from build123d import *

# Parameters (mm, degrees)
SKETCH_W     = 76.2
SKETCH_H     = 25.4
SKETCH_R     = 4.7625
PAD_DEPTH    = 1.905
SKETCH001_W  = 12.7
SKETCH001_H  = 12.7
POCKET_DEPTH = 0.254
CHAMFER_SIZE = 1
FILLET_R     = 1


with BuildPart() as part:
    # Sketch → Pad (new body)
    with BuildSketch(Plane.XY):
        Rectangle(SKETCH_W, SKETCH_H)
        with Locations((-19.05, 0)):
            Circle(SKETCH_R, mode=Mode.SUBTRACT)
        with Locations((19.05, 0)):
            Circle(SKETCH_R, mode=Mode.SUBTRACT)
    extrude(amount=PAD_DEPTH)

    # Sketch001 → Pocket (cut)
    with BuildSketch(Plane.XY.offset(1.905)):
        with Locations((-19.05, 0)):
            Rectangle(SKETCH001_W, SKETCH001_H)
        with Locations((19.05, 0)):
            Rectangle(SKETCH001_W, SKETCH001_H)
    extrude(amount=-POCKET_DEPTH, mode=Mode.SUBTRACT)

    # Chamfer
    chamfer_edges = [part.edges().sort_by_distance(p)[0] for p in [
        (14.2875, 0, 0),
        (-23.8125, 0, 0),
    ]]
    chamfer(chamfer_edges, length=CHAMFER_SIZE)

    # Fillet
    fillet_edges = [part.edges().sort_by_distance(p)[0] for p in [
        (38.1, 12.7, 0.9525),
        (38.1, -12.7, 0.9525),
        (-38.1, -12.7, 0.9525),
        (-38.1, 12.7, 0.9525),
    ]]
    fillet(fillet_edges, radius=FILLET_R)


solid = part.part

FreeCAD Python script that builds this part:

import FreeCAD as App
import Part
import Sketcher
from FreeCAD import Vector
Q = App.Units.Quantity


def edges_at(feature, points):
    """Names of the edges that pass closest to the given points."""
    edges = feature.Shape.Edges
    near = lambda p: min(range(len(edges)), key=lambda i: edges[i].distToShape(Part.Vertex(*p))[0])
    return sorted({f"Edge{near(p) + 1}" for p in points})


def add_polygon(sketch, points):
    """Adds a closed chain of lines whose ends are joined by coincident constraints."""
    first, n = sketch.GeometryCount, len(points)
    for a, b in zip(points, points[1:] + points[:1]):
        sketch.addGeometry(Part.LineSegment(App.Vector(*a, 0), App.Vector(*b, 0)), False)
    for i in range(n):
        sketch.addConstraint(Sketcher.Constraint("Coincident", first + i, 2, first + (i + 1) % n, 1))

doc = App.newDocument("Part")
params = doc.addObject("Spreadsheet::Sheet", "Params")
for row, (alias, value) in enumerate([
    ("sketch1_width", "3 in"),
    ("sketch1_height", "1 in"),
    ("sketch1_diameter", "0.375 in"),
    ("pad1_length", "0.075 in"),
    ("sketch2_width", "0.5 in"),
    ("pocket1_length", "0.01 in"),
    ("chamfer_size", "1 mm"),
    ("fillet_radius", "1 mm"),
], start=1):
    params.set(f"A{row}", alias)
    params.set(f"B{row}", "=" + value)
    params.setAlias(f"B{row}", alias)

body = doc.addObject("PartDesign::Body", "Body")

# Sketch on XY plane
sketch1 = body.newObject("Sketcher::SketchObject", "Sketch")
sketch1.AttachmentSupport = (doc.getObject("XY_Plane"), [""])
sketch1.MapMode = "FlatFace"
add_polygon(sketch1, [(-38.1, 12.7), (-38.1, -12.7), (38.1, -12.7), (38.1, 12.7)])  # lines 0-3
sketch1.addGeometry(Part.Circle(Vector(-19.1, 0, 0), Vector(0, 0, 1), 4.8), False)  # 4
sketch1.addGeometry(Part.Circle(Vector(19.1, 0, 0), Vector(0, 0, 1), 4.8), False)  # 5
sketch1.addConstraint([
    Sketcher.Constraint("Vertical", 0),
    Sketcher.Constraint("Horizontal", 1),
    Sketcher.Constraint("Vertical", 2),
    Sketcher.Constraint("Horizontal", 3),
    Sketcher.Constraint("Equal", 4, 5),
    Sketcher.Constraint("Symmetric", 4, 3, 5, 3, -1, 1),
    Sketcher.Constraint("Symmetric", 0, 2, 2, 2, -1, 1),
    Sketcher.Constraint("PointOnObject", 4, 3, -1),
    Sketcher.Constraint("DistanceX", 1, 1, 1, 2, Q("3 in")),
    Sketcher.Constraint("DistanceY", 0, 2, 0, 1, Q("1 in")),
    Sketcher.Constraint("Diameter", 4, Q("0.375 in")),
    Sketcher.Constraint("DistanceX", 4, 3, 5, 3, Q("1.5 in")),
])
sketch1.setExpression("Constraints[12]", "Params.sketch1_width")
sketch1.setExpression("Constraints[13]", "Params.sketch1_height")
sketch1.setExpression("Constraints[14]", "Params.sketch1_diameter")
pad1 = body.newObject("PartDesign::Pad", "Pad")
pad1.Profile = sketch1
pad1.setExpression("Length", "Params.pad1_length")

# Sketch on XY plane
sketch2 = body.newObject("Sketcher::SketchObject", "Sketch001")
sketch2.AttachmentSupport = (doc.getObject("XY_Plane"), [""])
sketch2.MapMode = "FlatFace"
sketch2.AttachmentOffset = App.Placement(Vector(0, 0, 0.075 * 25.4), App.Rotation())
add_polygon(sketch2, [(-25, 6), (-25, -6), (-13, -6), (-13, 6)])  # lines 0-3
add_polygon(sketch2, [(13, 6), (13, -6), (25, -6), (25, 6)])  # lines 4-7
sketch2.addConstraint([
    Sketcher.Constraint("Vertical", 0),
    Sketcher.Constraint("Horizontal", 1),
    Sketcher.Constraint("Vertical", 2),
    Sketcher.Constraint("Horizontal", 3),
    Sketcher.Constraint("Vertical", 4),
    Sketcher.Constraint("Horizontal", 5),
    Sketcher.Constraint("Vertical", 6),
    Sketcher.Constraint("Horizontal", 7),
    Sketcher.Constraint("Symmetric", 2, 2, 4, 2, -1, 1),
    Sketcher.Constraint("Symmetric", 0, 2, 6, 2, -1, 1),
    Sketcher.Constraint("Horizontal", 1, 2, 4, 2),
    Sketcher.Constraint("Equal", 7, 0),
    Sketcher.Constraint("DistanceX", 1, 1, 1, 2, Q("0.5 in")),
    Sketcher.Constraint("DistanceX", 0, 2, -1, 1, Q("1 in")),
])
sketch2.setExpression("Constraints[20]", "Params.sketch2_width")
pocket1 = body.newObject("PartDesign::Pocket", "Pocket")
pocket1.Profile = sketch2
pocket1.setExpression("Length", "Params.pocket1_length")
doc.recompute()

chamfer = body.newObject("PartDesign::Chamfer", "Chamfer")
chamfer.Base = (pocket1, edges_at(pocket1, [(14.287, 0, 0), (-23.812, 0, 0)]))
chamfer.setExpression("Size", "Params.chamfer_size")
doc.recompute()

fillet = body.newObject("PartDesign::Fillet", "Fillet")
fillet.Base = (chamfer, edges_at(chamfer, [
    (38.1, 12.7, 0.953),
    (38.1, -12.7, 0.953),
    (-38.1, -12.7, 0.953),
    (-38.1, 12.7, 0.953),
]))
fillet.setExpression("Radius", "Params.fillet_radius")

doc.recompute()
